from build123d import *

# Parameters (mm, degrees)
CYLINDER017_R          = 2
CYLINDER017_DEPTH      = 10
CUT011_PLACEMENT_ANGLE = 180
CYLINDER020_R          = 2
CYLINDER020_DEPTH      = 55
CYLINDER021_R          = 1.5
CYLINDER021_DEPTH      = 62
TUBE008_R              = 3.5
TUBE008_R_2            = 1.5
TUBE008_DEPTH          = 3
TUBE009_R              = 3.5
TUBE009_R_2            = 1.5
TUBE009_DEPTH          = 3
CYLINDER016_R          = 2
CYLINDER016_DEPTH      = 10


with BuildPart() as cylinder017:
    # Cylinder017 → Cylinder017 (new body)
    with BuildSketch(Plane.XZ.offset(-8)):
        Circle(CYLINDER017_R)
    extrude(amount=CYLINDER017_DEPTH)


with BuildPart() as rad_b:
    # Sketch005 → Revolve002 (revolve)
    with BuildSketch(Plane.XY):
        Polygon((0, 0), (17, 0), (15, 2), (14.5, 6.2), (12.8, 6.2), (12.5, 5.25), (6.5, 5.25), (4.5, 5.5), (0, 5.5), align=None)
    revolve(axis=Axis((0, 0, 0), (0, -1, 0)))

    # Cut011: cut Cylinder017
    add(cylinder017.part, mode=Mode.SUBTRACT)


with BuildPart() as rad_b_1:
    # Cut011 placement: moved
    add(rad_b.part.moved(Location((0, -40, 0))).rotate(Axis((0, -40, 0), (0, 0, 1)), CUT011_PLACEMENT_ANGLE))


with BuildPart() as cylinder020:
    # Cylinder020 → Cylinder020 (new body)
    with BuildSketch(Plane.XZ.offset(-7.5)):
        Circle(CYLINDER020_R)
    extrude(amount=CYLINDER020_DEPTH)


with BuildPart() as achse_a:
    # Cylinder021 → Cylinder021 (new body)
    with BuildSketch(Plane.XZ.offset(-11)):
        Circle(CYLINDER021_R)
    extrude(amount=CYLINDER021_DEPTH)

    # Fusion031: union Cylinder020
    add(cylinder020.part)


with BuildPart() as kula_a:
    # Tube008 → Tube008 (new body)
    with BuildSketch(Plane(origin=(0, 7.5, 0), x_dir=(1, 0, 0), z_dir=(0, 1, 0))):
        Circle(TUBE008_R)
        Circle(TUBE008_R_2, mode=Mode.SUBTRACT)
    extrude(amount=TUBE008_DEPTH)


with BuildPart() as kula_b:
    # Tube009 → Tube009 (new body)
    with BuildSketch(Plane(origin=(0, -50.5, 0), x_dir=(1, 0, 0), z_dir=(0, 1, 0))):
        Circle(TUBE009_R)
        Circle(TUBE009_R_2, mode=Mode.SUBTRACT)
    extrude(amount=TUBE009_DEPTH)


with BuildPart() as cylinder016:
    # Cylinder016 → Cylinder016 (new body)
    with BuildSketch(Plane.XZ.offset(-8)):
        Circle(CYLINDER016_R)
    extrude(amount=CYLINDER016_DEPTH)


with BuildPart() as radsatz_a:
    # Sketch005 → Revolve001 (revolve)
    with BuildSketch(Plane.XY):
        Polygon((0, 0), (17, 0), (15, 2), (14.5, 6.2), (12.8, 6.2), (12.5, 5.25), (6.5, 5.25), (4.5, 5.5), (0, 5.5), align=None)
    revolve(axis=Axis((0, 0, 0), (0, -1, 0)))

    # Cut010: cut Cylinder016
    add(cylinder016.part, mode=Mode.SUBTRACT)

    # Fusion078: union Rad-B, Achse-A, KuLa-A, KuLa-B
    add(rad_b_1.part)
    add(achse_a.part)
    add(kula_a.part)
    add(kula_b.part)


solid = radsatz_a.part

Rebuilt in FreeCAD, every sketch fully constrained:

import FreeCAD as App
import Part
import Sketcher

V = App.Vector
Q = App.Units.Quantity

doc = App.newDocument("Part")
body = doc.addObject("PartDesign::Body", "Body")

# Sketch on XZ plane
sketch1 = doc.addObject("Sketcher::SketchObject", "Sketch")
body.addObject(sketch1)
sketch1.AttachmentSupport = (doc.XZ_Plane, [""])
sketch1.MapMode = "FlatFace"
sketch1.AttachmentOffset = App.Placement(V(0, 0, -8), App.Rotation())
sketch1.addGeometry(Part.Circle(V(0, 0, 0), V(0, 0, 1), 2), False)
sketch1.addConstraint([
    Sketcher.Constraint("Coincident", 0, 3, -1, 1),
    Sketcher.Constraint("Diameter", 0, Q("4 mm")),
])
pad1 = doc.addObject("PartDesign::Pad", "Pad")
body.addObject(pad1)
pad1.Profile = sketch1
pad1.Length = 10
body2 = doc.addObject("PartDesign::Body", "Body001")

# Sketch on XY plane
sketch2 = doc.addObject("Sketcher::SketchObject", "Sketch001")
body2.addObject(sketch2)
sketch2.AttachmentSupport = (doc.getObject("XY_Plane001"), [""])
sketch2.MapMode = "FlatFace"
sketch2.addGeometry([
    Part.LineSegment(V(0, 0, 0), V(17, 0, 0)),  # 0
    Part.LineSegment(V(17, 0, 0), V(15, 2, 0)),  # 1
    Part.LineSegment(V(15, 2, 0), V(14.5, 6.2, 0)),  # 2
    Part.LineSegment(V(14.5, 6.2, 0), V(12.8, 6.2, 0)),  # 3
    Part.LineSegment(V(12.8, 6.2, 0), V(12.5, 5.2, 0)),  # 4
    Part.LineSegment(V(12.5, 5.2, 0), V(6.5, 5.2, 0)),  # 5
    Part.LineSegment(V(6.5, 5.2, 0), V(4.5, 5.5, 0)),  # 6
    Part.LineSegment(V(4.5, 5.5, 0), V(0, 5.5, 0)),  # 7
    Part.LineSegment(V(0, 5.5, 0), V(0, 0, 0)),  # 8
], False)
sketch2.addConstraint([
    Sketcher.Constraint("Coincident", 0, 2, 1, 1),
    Sketcher.Constraint("Coincident", 1, 2, 2, 1),
    Sketcher.Constraint("Coincident", 2, 2, 3, 1),
    Sketcher.Constraint("Coincident", 3, 2, 4, 1),
    Sketcher.Constraint("Coincident", 4, 2, 5, 1),
    Sketcher.Constraint("Coincident", 5, 2, 6, 1),
    Sketcher.Constraint("Coincident", 6, 2, 7, 1),
    Sketcher.Constraint("Coincident", 7, 2, 8, 1),
    Sketcher.Constraint("Coincident", 8, 2, 0, 1),
    Sketcher.Constraint("Horizontal", 0),
    Sketcher.Constraint("Horizontal", 3),
    Sketcher.Constraint("Horizontal", 5),
    Sketcher.Constraint("Horizontal", 7),
    Sketcher.Constraint("Vertical", 8),
    Sketcher.Constraint("Coincident", 8, 2, -1, 1),
    Sketcher.Constraint("DistanceX", 0, 1, 0, 2, Q("17 mm")),
    Sketcher.Constraint("DistanceX", 5, 2, 5, 1, Q("6 mm")),
    Sketcher.Constraint("Angle", 1, Q("135 deg")),
    Sketcher.Constraint("DistanceX", 3, 2, 3, 1, Q("1.7 mm")),
    Sketcher.Constraint("DistanceX", 7, 2, 7, 1, Q("4.5 mm")),
    Sketcher.Constraint("DistanceY", 8, 2, 8, 1, Q("5.5 mm")),
    Sketcher.Constraint("DistanceX", -1, 1, 1, 2, Q("15 mm")),
    Sketcher.Constraint("DistanceX", 4, 2, 2, 2, Q("2 mm")),
    Sketcher.Constraint("DistanceX", 6, 2, 5, 2, Q("2 mm")),
    Sketcher.Constraint("DistanceY", -1, 1, 2, 2, Q("6.2 mm")),
    Sketcher.Constraint("DistanceY", -1, 1, 4, 2, Q("5.25 mm")),
])
revolution = doc.addObject("PartDesign::Revolution", "Revolution")
body2.addObject(revolution)
revolution.Profile = sketch2
revolution.ReferenceAxis = (sketch2, ["V_Axis"])
revolution.Angle = 360
doc.recompute()

boolean = doc.addObject("PartDesign::Boolean", "Boolean")
body2.addObject(boolean)
boolean.Type = "Cut"
boolean.addObjects([body])
body3 = doc.addObject("PartDesign::Body", "Body002")
doc.recompute()

body2.Placement = App.Placement(V(0, -40, 0), App.Rotation(V(0, 0, 1), 180))
boolean2 = doc.addObject("PartDesign::Boolean", "Boolean001")
body3.addObject(boolean2)
boolean2.Type = "Fuse"
boolean2.addObjects([body2])
body4 = doc.addObject("PartDesign::Body", "Body003")

# Sketch on XZ plane
sketch3 = doc.addObject("Sketcher::SketchObject", "Sketch002")
body4.addObject(sketch3)
sketch3.AttachmentSupport = (doc.getObject("XZ_Plane003"), [""])
sketch3.MapMode = "FlatFace"
sketch3.AttachmentOffset = App.Placement(V(0, 0, -7.5), App.Rotation())
sketch3.addGeometry(Part.Circle(V(0, 0, 0), V(0, 0, 1), 2), False)
sketch3.addConstraint([
    Sketcher.Constraint("Coincident", 0, 3, -1, 1),
    Sketcher.Constraint("Diameter", 0, Q("4 mm")),
])
pad2 = doc.addObject("PartDesign::Pad", "Pad001")
body4.addObject(pad2)
pad2.Profile = sketch3
pad2.Length = 55
body5 = doc.addObject("PartDesign::Body", "Body004")

# Sketch on XZ plane
sketch4 = doc.addObject("Sketcher::SketchObject", "Sketch003")
body5.addObject(sketch4)
sketch4.AttachmentSupport = (doc.getObject("XZ_Plane004"), [""])
sketch4.MapMode = "FlatFace"
sketch4.AttachmentOffset = App.Placement(V(0, 0, -11), App.Rotation())
sketch4.addGeometry(Part.Circle(V(0, 0, 0), V(0, 0, 1), 1.5), False)
sketch4.addConstraint([
    Sketcher.Constraint("Coincident", 0, 3, -1, 1),
    Sketcher.Constraint("Diameter", 0, Q("3 mm")),
])
pad3 = doc.addObject("PartDesign::Pad", "Pad002")
body5.addObject(pad3)
pad3.Profile = sketch4
pad3.Length = 62
doc.recompute()

boolean3 = doc.addObject("PartDesign::Boolean", "Boolean002")
body5.addObject(boolean3)
boolean3.Type = "Fuse"
boolean3.addObjects([body4])
body6 = doc.addObject("PartDesign::Body", "Body005")

# Sketch on XZ plane
sketch5 = doc.addObject("Sketcher::SketchObject", "Sketch004")
body6.addObject(sketch5)
sketch5.AttachmentSupport = (doc.getObject("XZ_Plane005"), [""])
sketch5.MapMode = "FlatFace"
sketch5.AttachmentOffset = App.Placement(V(0, 0, -7.5), App.Rotation())
sketch5.addGeometry([
    Part.Circle(V(0, 0, 0), V(0, 0, 1), 3.5),
    Part.Circle(V(0, 0, 0), V(0, 0, 1), 1.5),
], False)
sketch5.addConstraint([
    Sketcher.Constraint("Coincident", 0, 3, -1, 1),
    Sketcher.Constraint("Coincident", 1, 3, -1, 1),
    Sketcher.Constraint("Diameter", 0, Q("7 mm")),
    Sketcher.Constraint("Diameter", 1, Q("3 mm")),
])
pad4 = doc.addObject("PartDesign::Pad", "Pad003")
body6.addObject(pad4)
pad4.Profile = sketch5
pad4.Length = 3
pad4.Reversed = True
body7 = doc.addObject("PartDesign::Body", "Body006")

# Sketch on XZ plane
sketch6 = doc.addObject("Sketcher::SketchObject", "Sketch005")
body7.addObject(sketch6)
sketch6.AttachmentSupport = (doc.getObject("XZ_Plane006"), [""])
sketch6.MapMode = "FlatFace"
sketch6.AttachmentOffset = App.Placement(V(0, 0, 50.5), App.Rotation())
sketch6.addGeometry([
    Part.Circle(V(0, 0, 0), V(0, 0, 1), 3.5),
    Part.Circle(V(0, 0, 0), V(0, 0, 1), 1.5),
], False)
sketch6.addConstraint([
    Sketcher.Constraint("Coincident", 0, 3, -1, 1),
    Sketcher.Constraint("Coincident", 1, 3, -1, 1),
    Sketcher.Constraint("Diameter", 0, Q("7 mm")),
    Sketcher.Constraint("Diameter", 1, Q("3 mm")),
])
pad5 = doc.addObject("PartDesign::Pad", "Pad004")
body7.addObject(pad5)
pad5.Profile = sketch6
pad5.Length = 3
pad5.Reversed = True
body8 = doc.addObject("PartDesign::Body", "Body007")

# Sketch on XZ plane
sketch7 = doc.addObject("Sketcher::SketchObject", "Sketch006")
body8.addObject(sketch7)
sketch7.AttachmentSupport = (doc.getObject("XZ_Plane007"), [""])
sketch7.MapMode = "FlatFace"
sketch7.AttachmentOffset = App.Placement(V(0, 0, -8), App.Rotation())
sketch7.addGeometry(Part.Circle(V(0, 0, 0), V(0, 0, 1), 2), False)
sketch7.addConstraint([
    Sketcher.Constraint("Coincident", 0, 3, -1, 1),
    Sketcher.Constraint("Diameter", 0, Q("4 mm")),
])
pad6 = doc.addObject("PartDesign::Pad", "Pad005")
body8.addObject(pad6)
pad6.Profile = sketch7
pad6.Length = 10
body9 = doc.addObject("PartDesign::Body", "Body008")
body9.AllowCompound = True

# Sketch on XY plane
sketch8 = doc.addObject("Sketcher::SketchObject", "Sketch007")
body9.addObject(sketch8)
sketch8.AttachmentSupport = (doc.getObject("XY_Plane008"), [""])
sketch8.MapMode = "FlatFace"
sketch8.addGeometry([
    Part.LineSegment(V(0, 0, 0), V(17, 0, 0)),  # 0
    Part.LineSegment(V(17, 0, 0), V(15, 2, 0)),  # 1
    Part.LineSegment(V(15, 2, 0), V(14.5, 6.2, 0)),  # 2
    Part.LineSegment(V(14.5, 6.2, 0), V(12.8, 6.2, 0)),  # 3
    Part.LineSegment(V(12.8, 6.2, 0), V(12.5, 5.2, 0)),  # 4
    Part.LineSegment(V(12.5, 5.2, 0), V(6.5, 5.2, 0)),  # 5
    Part.LineSegment(V(6.5, 5.2, 0), V(4.5, 5.5, 0)),  # 6
    Part.LineSegment(V(4.5, 5.5, 0), V(0, 5.5, 0)),  # 7
    Part.LineSegment(V(0, 5.5, 0), V(0, 0, 0)),  # 8
], False)
sketch8.addConstraint([
    Sketcher.Constraint("Coincident", 0, 2, 1, 1),
    Sketcher.Constraint("Coincident", 1, 2, 2, 1),
    Sketcher.Constraint("Coincident", 2, 2, 3, 1),
    Sketcher.Constraint("Coincident", 3, 2, 4, 1),
    Sketcher.Constraint("Coincident", 4, 2, 5, 1),
    Sketcher.Constraint("Coincident", 5, 2, 6, 1),
    Sketcher.Constraint("Coincident", 6, 2, 7, 1),
    Sketcher.Constraint("Coincident", 7, 2, 8, 1),
    Sketcher.Constraint("Coincident", 8, 2, 0, 1),
    Sketcher.Constraint("Horizontal", 0),
    Sketcher.Constraint("Horizontal", 3),
    Sketcher.Constraint("Horizontal", 5),
    Sketcher.Constraint("Horizontal", 7),
    Sketcher.Constraint("Vertical", 8),
    Sketcher.Constraint("Coincident", 8, 2, -1, 1),
    Sketcher.Constraint("DistanceX", 0, 1, 0, 2, Q("17 mm")),
    Sketcher.Constraint("DistanceX", 5, 2, 5, 1, Q("6 mm")),
    Sketcher.Constraint("Angle", 1, Q("135 deg")),
    Sketcher.Constraint("DistanceX", 3, 2, 3, 1, Q("1.7 mm")),
    Sketcher.Constraint("DistanceX", 7, 2, 7, 1, Q("4.5 mm")),
    Sketcher.Constraint("DistanceY", 8, 2, 8, 1, Q("5.5 mm")),
    Sketcher.Constraint("DistanceX", -1, 1, 1, 2, Q("15 mm")),
    Sketcher.Constraint("DistanceX", 4, 2, 2, 2, Q("2 mm")),
    Sketcher.Constraint("DistanceX", 6, 2, 5, 2, Q("2 mm")),
    Sketcher.Constraint("DistanceY", -1, 1, 2, 2, Q("6.2 mm")),
    Sketcher.Constraint("DistanceY", -1, 1, 4, 2, Q("5.25 mm")),
])
revolution2 = doc.addObject("PartDesign::Revolution", "Revolution001")
body9.addObject(revolution2)
revolution2.Profile = sketch8
revolution2.ReferenceAxis = (sketch8, ["V_Axis"])
revolution2.Angle = 360
doc.recompute()

boolean4 = doc.addObject("PartDesign::Boolean", "Boolean003")
body9.addObject(boolean4)
boolean4.Type = "Cut"
boolean4.addObjects([body8])
doc.recompute()

boolean5 = doc.addObject("PartDesign::Boolean", "Boolean004")
body9.addObject(boolean5)
boolean5.Type = "Fuse"
boolean5.addObjects([body3])
doc.recompute()

boolean6 = doc.addObject("PartDesign::Boolean", "Boolean005")
body9.addObject(boolean6)
boolean6.Type = "Fuse"
boolean6.addObjects([body5])
doc.recompute()

boolean7 = doc.addObject("PartDesign::Boolean", "Boolean006")
body9.addObject(boolean7)
boolean7.Type = "Fuse"
boolean7.addObjects([body6])
doc.recompute()

boolean8 = doc.addObject("PartDesign::Boolean", "Boolean007")
body9.addObject(boolean8)
boolean8.Type = "Fuse"
boolean8.addObjects([body7])

doc.recompute()
